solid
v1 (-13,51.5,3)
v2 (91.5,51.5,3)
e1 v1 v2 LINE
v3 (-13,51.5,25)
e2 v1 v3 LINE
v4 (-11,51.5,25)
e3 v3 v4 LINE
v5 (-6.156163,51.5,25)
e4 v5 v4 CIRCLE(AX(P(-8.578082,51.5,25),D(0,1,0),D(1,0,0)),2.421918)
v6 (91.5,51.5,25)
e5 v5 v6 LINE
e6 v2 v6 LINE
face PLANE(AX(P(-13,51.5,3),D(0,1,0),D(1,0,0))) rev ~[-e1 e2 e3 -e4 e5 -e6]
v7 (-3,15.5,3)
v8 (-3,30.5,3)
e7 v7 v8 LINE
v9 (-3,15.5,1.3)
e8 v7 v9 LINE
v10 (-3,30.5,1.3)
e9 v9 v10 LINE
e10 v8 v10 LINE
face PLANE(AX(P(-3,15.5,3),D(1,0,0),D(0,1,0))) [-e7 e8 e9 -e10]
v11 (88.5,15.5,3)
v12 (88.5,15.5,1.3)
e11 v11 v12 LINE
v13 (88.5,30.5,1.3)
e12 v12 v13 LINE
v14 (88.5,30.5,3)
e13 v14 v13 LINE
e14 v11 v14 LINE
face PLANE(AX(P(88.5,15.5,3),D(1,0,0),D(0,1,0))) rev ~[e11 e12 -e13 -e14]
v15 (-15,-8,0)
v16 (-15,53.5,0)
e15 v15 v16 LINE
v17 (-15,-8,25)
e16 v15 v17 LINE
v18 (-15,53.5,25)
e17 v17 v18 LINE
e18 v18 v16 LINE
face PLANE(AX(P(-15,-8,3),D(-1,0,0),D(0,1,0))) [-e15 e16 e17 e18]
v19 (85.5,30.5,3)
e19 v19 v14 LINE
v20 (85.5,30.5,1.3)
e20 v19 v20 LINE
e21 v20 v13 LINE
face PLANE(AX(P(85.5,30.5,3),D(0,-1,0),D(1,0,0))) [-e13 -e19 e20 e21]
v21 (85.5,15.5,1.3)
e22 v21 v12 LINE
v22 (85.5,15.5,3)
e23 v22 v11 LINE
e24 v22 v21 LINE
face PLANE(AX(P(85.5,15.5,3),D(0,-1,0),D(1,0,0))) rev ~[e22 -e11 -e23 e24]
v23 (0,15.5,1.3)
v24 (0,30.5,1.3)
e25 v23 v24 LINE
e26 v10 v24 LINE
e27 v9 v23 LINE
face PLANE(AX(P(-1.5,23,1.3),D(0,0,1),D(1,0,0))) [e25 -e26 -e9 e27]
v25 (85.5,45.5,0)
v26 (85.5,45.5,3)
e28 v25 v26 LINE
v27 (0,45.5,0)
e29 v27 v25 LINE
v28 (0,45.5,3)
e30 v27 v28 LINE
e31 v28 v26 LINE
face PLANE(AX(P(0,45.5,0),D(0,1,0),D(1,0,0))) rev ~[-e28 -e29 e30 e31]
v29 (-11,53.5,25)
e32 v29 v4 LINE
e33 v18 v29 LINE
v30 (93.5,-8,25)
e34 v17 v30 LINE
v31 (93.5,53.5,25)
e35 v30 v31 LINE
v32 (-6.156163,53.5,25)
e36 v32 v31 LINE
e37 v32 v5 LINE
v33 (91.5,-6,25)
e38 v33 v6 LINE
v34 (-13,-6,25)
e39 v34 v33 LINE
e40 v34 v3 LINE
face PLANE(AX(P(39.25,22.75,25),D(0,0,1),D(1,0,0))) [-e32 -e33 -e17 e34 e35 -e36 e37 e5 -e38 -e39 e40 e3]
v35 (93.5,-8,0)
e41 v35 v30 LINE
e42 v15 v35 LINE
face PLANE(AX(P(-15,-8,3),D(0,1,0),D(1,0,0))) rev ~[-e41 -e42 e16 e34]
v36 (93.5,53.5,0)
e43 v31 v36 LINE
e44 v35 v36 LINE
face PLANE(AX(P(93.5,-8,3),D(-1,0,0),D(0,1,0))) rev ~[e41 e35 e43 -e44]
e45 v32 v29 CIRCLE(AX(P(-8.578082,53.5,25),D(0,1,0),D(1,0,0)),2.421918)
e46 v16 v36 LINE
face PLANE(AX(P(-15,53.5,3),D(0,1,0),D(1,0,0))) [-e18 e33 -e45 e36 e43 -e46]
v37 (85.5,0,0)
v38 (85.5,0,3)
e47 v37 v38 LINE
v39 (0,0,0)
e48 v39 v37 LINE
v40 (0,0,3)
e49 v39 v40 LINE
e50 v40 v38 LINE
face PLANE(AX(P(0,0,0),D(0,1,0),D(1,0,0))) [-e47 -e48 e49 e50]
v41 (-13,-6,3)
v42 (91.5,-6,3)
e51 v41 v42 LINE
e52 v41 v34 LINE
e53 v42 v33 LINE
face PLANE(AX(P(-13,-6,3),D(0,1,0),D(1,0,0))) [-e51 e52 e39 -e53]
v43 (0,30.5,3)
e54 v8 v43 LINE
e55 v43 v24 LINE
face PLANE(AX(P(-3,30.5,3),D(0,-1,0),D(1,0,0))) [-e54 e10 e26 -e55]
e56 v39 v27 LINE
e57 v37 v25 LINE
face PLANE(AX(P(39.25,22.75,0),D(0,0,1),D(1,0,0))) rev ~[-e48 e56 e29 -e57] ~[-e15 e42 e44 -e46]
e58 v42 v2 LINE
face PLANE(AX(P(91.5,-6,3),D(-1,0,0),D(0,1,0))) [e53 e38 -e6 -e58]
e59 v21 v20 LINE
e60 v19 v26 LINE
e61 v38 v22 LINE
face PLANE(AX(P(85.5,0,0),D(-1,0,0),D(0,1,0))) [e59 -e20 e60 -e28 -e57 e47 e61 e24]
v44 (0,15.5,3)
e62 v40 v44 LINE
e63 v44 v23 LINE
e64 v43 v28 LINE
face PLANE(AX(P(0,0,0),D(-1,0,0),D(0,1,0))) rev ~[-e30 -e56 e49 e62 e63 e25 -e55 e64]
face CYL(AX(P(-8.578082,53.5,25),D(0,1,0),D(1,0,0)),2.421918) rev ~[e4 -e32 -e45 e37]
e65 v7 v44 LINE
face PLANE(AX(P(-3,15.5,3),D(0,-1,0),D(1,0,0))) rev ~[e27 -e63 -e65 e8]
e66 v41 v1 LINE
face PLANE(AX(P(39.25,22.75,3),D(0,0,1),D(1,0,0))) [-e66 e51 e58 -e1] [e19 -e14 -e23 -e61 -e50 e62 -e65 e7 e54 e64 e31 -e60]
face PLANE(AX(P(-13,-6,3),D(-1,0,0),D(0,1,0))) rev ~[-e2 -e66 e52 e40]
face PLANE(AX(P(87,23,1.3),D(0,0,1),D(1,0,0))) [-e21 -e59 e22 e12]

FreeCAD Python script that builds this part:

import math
import FreeCAD as App
import Part
import Sketcher
from FreeCAD import Vector
Q = App.Units.Quantity


def add_polygon(sketch, points):
    """Adds a closed chain of lines whose ends are joined by coincident constraints."""
    first, n = sketch.GeometryCount, len(points)
    for a, b in zip(points, points[1:] + points[:1]):
        sketch.addGeometry(Part.LineSegment(App.Vector(*a, 0), App.Vector(*b, 0)), False)
    for i in range(n):
        sketch.addConstraint(Sketcher.Constraint("Coincident", first + i, 2, first + (i + 1) % n, 1))

doc = App.newDocument("Part")
body = doc.addObject("PartDesign::Body", "Body")

sketch1 = body.newObject("Sketcher::SketchObject", "Sketch")
sketch1.AttachmentSupport = (doc.getObject("XY_Plane"), [""])
sketch1.MapMode = "FlatFace"
add_polygon(sketch1, [(-15, 54), (-15, -8), (94, -8), (94, 54)])
add_polygon(sketch1, [(86, 0), (0, 0), (0, 46), (86, 46)])
sketch1.addConstraint(Sketcher.Constraint("Vertical", 0))
sketch1.addConstraint(Sketcher.Constraint("Horizontal", 1))
sketch1.addConstraint(Sketcher.Constraint("Vertical", 2))
sketch1.addConstraint(Sketcher.Constraint("Horizontal", 3))
sketch1.addConstraint(Sketcher.Constraint("Horizontal", 4))
sketch1.addConstraint(Sketcher.Constraint("Vertical", 5))
sketch1.addConstraint(Sketcher.Constraint("Horizontal", 6))
sketch1.addConstraint(Sketcher.Constraint("Vertical", 7))
sketch1.addConstraint(Sketcher.Constraint("Coincident", 4, 2, -1, 1))
sketch1.addConstraint(Sketcher.Constraint("DistanceX", 1, 1, 1, 2, Q("108.5 mm")))
sketch1.addConstraint(Sketcher.Constraint("DistanceX", 4, 2, 4, 1, Q("85.5 mm")))
sketch1.addConstraint(Sketcher.Constraint("DistanceY", 0, 2, 0, 1, Q("61.5 mm")))
sketch1.addConstraint(Sketcher.Constraint("DistanceY", 5, 1, 5, 2, Q("45.5 mm")))
sketch1.addConstraint(Sketcher.Constraint("DistanceX", 0, 2, -1, 1, Q("15 mm")))
sketch1.addConstraint(Sketcher.Constraint("DistanceY", 0, 2, -1, 1, Q("8 mm")))
pad1 = body.newObject("PartDesign::Pad", "Pad")
pad1.Profile = sketch1
pad1.Length = 3

sketch2 = body.newObject("Sketcher::SketchObject", "Sketch001")
sketch2.AttachmentSupport = (doc.getObject("XY_Plane"), [""])
sketch2.MapMode = "FlatFace"
sketch2.AttachmentOffset = App.Placement(Vector(0, 0, 3), App.Rotation())
add_polygon(sketch2, [(-3, 30.5), (-3, 15.5), (0, 15.5), (0, 30.5)])
add_polygon(sketch2, [(85.5, 30.5), (85.5, 15.5), (88.5, 15.5), (88.5, 30.5)])
sketch2.addConstraint(Sketcher.Constraint("Vertical", 0))
sketch2.addConstraint(Sketcher.Constraint("Horizontal", 1))
sketch2.addConstraint(Sketcher.Constraint("Vertical", 2))
sketch2.addConstraint(Sketcher.Constraint("Horizontal", 3))
sketch2.addConstraint(Sketcher.Constraint("Vertical", 4))
sketch2.addConstraint(Sketcher.Constraint("Horizontal", 5))
sketch2.addConstraint(Sketcher.Constraint("Vertical", 6))
sketch2.addConstraint(Sketcher.Constraint("Horizontal", 7))
sketch2.addConstraint(Sketcher.Constraint("PointOnObject", 1, 2, -2))
sketch2.addConstraint(Sketcher.Constraint("Horizontal", 1, 2, 4, 2))
sketch2.addConstraint(Sketcher.Constraint("Horizontal", 3, 2, 6, 2))
sketch2.addConstraint(Sketcher.Constraint("Equal", 3, 5))
sketch2.addConstraint(Sketcher.Constraint("DistanceX", 1, 1, 1, 2, Q("3 mm")))
sketch2.addConstraint(Sketcher.Constraint("DistanceY", 0, 2, 0, 1, Q("15 mm")))
sketch2.addConstraint(Sketcher.Constraint("DistanceY", -1, 1, 0, 2, Q("15.5 mm")))
sketch2.addConstraint(Sketcher.Constraint("DistanceX", -1, 1, 4, 2, Q("85.5 mm")))
pocket1 = body.newObject("PartDesign::Pocket", "Pocket")
pocket1.Profile = sketch2
pocket1.Length = 1.7

sketch3 = body.newObject("Sketcher::SketchObject", "Sketch002")
sketch3.AttachmentSupport = (doc.getObject("XY_Plane"), [""])
sketch3.MapMode = "FlatFace"
sketch3.AttachmentOffset = App.Placement(Vector(0, 0, 3), App.Rotation())
add_polygon(sketch3, [(-15, 54), (-15, -8), (94, -8), (94, 54)])
add_polygon(sketch3, [(92, -6), (-13, -6), (-13, 52), (92, 52)])
sketch3.addConstraint(Sketcher.Constraint("Vertical", 0))
sketch3.addConstraint(Sketcher.Constraint("Horizontal", 1))
sketch3.addConstraint(Sketcher.Constraint("Vertical", 2))
sketch3.addConstraint(Sketcher.Constraint("Horizontal", 3))
sketch3.addConstraint(Sketcher.Constraint("Horizontal", 4))
sketch3.addConstraint(Sketcher.Constraint("Vertical", 5))
sketch3.addConstraint(Sketcher.Constraint("Horizontal", 6))
sketch3.addConstraint(Sketcher.Constraint("Vertical", 7))
sketch3.addConstraint(Sketcher.Constraint("DistanceX", 1, 1, 1, 2, Q("108.5 mm")))
sketch3.addConstraint(Sketcher.Constraint("DistanceX", 4, 2, 4, 1, Q("104.5 mm")))
sketch3.addConstraint(Sketcher.Constraint("DistanceY", 0, 2, 0, 1, Q("61.5 mm")))
sketch3.addConstraint(Sketcher.Constraint("DistanceY", 5, 1, 5, 2, Q("57.5 mm")))
sketch3.addConstraint(Sketcher.Constraint("DistanceX", 0, 2, -1, 1, Q("15 mm")))
sketch3.addConstraint(Sketcher.Constraint("DistanceY", 0, 2, -1, 1, Q("8 mm")))
sketch3.addConstraint(Sketcher.Constraint("DistanceX", 4, 2, -1, 1, Q("13 mm")))
sketch3.addConstraint(Sketcher.Constraint("DistanceY", 4, 2, -1, 1, Q("6 mm")))
pad2 = body.newObject("PartDesign::Pad", "Pad001")
pad2.Profile = sketch3
pad2.Length = 22

sketch4 = body.newObject("Sketcher::SketchObject", "Sketch003")
sketch4.AttachmentSupport = (doc.getObject("XZ_Plane"), [""])
sketch4.MapMode = "FlatFace"
sketch4.AttachmentOffset = App.Placement(Vector(0, 0, -53.5), App.Rotation())
sketch4.addGeometry(Part.LineSegment(Vector(-11, 25, 0), Vector(-6.2, 25, 0)), False)
sketch4.addGeometry(Part.ArcOfCircle(Part.Circle(Vector(-8.6, 25, 0), Vector(0, 0, 1), 2.4), math.radians(180), math.radians(360)), False)
sketch4.addConstraint(Sketcher.Constraint("Coincident", 0, 1, 1, 1))
sketch4.addConstraint(Sketcher.Constraint("Coincident", 1, 2, 0, 2))
sketch4.addConstraint(Sketcher.Constraint("Horizontal", 0))
sketch4.addConstraint(Sketcher.Constraint("Horizontal", 1, 3, 0, 1))
sketch4.addConstraint(Sketcher.Constraint("DistanceY", -1, 1, 1, 3, Q("25 mm")))
sketch4.addConstraint(Sketcher.Constraint("DistanceX", 0, 1, -1, 1, Q("11 mm")))
sketch4.addConstraint(Sketcher.Constraint("Radius", 1, Q("2.421918 mm")))
pocket2 = body.newObject("PartDesign::Pocket", "Pocket001")
pocket2.Profile = sketch4
pocket2.Length = 2
pocket2.Reversed = True

doc.recompute()
